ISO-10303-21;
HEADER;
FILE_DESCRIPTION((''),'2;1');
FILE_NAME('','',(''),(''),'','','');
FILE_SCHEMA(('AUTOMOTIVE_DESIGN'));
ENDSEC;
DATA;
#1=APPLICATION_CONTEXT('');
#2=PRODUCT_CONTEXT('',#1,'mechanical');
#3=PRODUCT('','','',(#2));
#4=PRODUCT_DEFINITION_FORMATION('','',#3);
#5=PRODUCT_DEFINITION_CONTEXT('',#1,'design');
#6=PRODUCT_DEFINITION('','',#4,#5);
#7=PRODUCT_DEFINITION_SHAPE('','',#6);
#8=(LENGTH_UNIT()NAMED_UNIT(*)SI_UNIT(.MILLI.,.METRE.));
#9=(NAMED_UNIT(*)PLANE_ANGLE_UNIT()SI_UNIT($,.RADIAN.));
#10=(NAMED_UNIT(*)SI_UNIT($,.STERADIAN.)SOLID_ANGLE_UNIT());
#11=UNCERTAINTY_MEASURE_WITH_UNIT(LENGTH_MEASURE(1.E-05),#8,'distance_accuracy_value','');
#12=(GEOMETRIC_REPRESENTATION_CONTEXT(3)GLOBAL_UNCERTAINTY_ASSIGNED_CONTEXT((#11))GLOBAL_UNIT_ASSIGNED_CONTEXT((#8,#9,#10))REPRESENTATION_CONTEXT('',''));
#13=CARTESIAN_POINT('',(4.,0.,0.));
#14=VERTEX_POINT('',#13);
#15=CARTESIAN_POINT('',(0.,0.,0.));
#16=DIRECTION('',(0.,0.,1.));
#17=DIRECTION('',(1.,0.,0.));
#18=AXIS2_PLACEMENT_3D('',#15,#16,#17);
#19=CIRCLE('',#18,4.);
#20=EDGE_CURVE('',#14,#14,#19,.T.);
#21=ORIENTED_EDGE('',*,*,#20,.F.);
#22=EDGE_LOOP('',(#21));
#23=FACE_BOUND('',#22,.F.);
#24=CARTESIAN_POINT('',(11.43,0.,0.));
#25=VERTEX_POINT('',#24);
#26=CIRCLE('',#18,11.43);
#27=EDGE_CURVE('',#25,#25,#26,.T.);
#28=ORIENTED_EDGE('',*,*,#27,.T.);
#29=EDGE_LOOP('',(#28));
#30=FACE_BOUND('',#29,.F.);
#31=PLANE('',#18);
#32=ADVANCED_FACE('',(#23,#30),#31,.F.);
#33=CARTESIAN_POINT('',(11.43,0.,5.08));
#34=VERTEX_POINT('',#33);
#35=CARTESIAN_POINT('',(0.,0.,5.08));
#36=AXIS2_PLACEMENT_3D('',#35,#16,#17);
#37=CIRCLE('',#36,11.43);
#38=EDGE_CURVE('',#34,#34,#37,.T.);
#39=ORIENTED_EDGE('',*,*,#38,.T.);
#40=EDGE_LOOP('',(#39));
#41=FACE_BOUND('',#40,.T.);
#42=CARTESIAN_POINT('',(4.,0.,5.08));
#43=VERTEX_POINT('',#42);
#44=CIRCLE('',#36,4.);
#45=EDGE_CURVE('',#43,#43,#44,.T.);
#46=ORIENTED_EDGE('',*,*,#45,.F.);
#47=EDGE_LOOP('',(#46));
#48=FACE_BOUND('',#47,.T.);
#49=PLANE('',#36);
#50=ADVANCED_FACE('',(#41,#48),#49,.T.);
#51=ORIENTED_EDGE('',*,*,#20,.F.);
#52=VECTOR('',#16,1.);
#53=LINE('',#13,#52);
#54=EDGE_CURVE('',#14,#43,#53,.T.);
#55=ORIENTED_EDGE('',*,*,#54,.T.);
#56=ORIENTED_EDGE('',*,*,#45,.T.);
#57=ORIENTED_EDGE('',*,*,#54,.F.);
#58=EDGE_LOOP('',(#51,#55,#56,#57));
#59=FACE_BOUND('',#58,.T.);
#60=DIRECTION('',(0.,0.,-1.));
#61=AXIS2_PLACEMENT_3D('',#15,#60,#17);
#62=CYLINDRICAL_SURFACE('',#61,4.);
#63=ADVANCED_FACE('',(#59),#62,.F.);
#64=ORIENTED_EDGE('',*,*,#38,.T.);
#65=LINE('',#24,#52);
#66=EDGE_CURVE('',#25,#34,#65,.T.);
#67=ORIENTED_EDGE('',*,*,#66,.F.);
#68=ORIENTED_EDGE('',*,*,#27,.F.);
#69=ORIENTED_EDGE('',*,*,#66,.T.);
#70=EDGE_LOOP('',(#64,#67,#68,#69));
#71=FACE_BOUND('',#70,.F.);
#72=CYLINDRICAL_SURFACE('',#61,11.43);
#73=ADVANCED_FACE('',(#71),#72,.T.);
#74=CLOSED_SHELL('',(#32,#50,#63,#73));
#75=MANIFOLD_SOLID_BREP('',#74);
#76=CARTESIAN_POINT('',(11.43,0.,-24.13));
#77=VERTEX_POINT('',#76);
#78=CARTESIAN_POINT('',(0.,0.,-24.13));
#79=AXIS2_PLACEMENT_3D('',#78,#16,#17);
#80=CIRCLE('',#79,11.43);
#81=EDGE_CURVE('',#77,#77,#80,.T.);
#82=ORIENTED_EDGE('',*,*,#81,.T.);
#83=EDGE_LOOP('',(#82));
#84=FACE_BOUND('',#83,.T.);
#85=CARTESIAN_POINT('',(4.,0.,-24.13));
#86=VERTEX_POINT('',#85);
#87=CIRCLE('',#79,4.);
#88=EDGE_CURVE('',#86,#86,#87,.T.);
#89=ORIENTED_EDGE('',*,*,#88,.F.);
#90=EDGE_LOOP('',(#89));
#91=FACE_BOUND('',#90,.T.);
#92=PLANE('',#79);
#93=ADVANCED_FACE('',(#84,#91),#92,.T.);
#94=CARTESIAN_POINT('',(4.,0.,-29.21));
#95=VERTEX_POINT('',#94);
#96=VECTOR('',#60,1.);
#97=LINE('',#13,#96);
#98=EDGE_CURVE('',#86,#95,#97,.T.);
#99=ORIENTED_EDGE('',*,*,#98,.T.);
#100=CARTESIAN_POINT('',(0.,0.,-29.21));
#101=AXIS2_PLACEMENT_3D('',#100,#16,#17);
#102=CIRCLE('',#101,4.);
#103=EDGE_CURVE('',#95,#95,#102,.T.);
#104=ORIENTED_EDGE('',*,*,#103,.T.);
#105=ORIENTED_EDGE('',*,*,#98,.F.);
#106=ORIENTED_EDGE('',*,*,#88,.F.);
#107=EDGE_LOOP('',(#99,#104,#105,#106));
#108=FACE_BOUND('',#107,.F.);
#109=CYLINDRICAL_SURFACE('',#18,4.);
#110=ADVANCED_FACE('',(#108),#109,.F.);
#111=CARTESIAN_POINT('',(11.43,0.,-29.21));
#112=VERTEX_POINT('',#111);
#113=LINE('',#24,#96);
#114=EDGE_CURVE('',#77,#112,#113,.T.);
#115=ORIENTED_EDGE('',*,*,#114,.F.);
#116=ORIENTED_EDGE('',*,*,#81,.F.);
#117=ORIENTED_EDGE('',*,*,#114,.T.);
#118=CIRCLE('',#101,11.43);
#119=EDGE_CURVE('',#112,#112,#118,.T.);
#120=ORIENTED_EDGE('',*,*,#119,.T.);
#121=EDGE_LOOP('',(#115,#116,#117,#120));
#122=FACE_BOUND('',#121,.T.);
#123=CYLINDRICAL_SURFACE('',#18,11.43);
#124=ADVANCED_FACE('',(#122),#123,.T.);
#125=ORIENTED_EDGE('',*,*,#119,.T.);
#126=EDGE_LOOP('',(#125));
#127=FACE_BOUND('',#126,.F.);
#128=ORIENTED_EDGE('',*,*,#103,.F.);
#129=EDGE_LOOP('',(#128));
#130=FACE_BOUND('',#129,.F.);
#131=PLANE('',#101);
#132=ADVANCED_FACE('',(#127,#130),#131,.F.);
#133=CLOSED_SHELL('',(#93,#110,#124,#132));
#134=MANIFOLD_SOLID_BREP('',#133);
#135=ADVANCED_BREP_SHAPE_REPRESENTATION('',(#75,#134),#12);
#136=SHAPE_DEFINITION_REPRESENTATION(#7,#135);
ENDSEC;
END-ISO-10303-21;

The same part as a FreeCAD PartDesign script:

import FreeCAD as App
import Part
import Sketcher
Q = App.Units.Quantity

doc = App.newDocument("Part")
body = doc.addObject("PartDesign::Body", "Body")
body.AllowCompound = True

# Sketch on XY plane
sketch1 = doc.addObject("Sketcher::SketchObject", "Sketch")
body.addObject(sketch1)
sketch1.AttachmentSupport = (doc.XY_Plane, [""])
sketch1.MapMode = "FlatFace"
sketch1.addGeometry([
    Part.Circle(App.Vector(0, 0, 0), App.Vector(0, 0, 1), 11.4),
    Part.Circle(App.Vector(0, 0, 0), App.Vector(0, 0, 1), 4),
], False)
sketch1.addConstraint([
    Sketcher.Constraint("Coincident", 0, 3, -1, 1),
    Sketcher.Constraint("Coincident", 1, 3, -1, 1),
    Sketcher.Constraint("Diameter", 0, Q("0.9 in")),
    Sketcher.Constraint("Diameter", 1, Q("8 mm")),
])
pad1 = doc.addObject("PartDesign::Pad", "Pad")
body.addObject(pad1)
pad1.Profile = sketch1
pad1.Type = "TwoLengths"
pad1.Length = Q("0.2 in")
pad1.Length2 = Q("1.15 in")

# Sketch on XY plane
sketch2 = doc.addObject("Sketcher::SketchObject", "Sketch001")
body.addObject(sketch2)
sketch2.AttachmentSupport = (doc.XY_Plane, [""])
sketch2.MapMode = "FlatFace"
sketch2.addGeometry([
    Part.Circle(App.Vector(0, 0, 0), App.Vector(0, 0, 1), 11.4),
    Part.Circle(App.Vector(0, 0, 0), App.Vector(0, 0, 1), 4),
], False)
sketch2.addConstraint([
    Sketcher.Constraint("Coincident", 0, 3, -1, 1),
    Sketcher.Constraint("Coincident", 1, 3, -1, 1),
    Sketcher.Constraint("Diameter", 0, Q("0.9 in")),
    Sketcher.Constraint("Diameter", 1, Q("8 mm")),
])
pocket1 = doc.addObject("PartDesign::Pocket", "Pocket")
body.addObject(pocket1)
pocket1.Profile = sketch2
pocket1.Length = Q("0.95 in")

doc.recompute()
